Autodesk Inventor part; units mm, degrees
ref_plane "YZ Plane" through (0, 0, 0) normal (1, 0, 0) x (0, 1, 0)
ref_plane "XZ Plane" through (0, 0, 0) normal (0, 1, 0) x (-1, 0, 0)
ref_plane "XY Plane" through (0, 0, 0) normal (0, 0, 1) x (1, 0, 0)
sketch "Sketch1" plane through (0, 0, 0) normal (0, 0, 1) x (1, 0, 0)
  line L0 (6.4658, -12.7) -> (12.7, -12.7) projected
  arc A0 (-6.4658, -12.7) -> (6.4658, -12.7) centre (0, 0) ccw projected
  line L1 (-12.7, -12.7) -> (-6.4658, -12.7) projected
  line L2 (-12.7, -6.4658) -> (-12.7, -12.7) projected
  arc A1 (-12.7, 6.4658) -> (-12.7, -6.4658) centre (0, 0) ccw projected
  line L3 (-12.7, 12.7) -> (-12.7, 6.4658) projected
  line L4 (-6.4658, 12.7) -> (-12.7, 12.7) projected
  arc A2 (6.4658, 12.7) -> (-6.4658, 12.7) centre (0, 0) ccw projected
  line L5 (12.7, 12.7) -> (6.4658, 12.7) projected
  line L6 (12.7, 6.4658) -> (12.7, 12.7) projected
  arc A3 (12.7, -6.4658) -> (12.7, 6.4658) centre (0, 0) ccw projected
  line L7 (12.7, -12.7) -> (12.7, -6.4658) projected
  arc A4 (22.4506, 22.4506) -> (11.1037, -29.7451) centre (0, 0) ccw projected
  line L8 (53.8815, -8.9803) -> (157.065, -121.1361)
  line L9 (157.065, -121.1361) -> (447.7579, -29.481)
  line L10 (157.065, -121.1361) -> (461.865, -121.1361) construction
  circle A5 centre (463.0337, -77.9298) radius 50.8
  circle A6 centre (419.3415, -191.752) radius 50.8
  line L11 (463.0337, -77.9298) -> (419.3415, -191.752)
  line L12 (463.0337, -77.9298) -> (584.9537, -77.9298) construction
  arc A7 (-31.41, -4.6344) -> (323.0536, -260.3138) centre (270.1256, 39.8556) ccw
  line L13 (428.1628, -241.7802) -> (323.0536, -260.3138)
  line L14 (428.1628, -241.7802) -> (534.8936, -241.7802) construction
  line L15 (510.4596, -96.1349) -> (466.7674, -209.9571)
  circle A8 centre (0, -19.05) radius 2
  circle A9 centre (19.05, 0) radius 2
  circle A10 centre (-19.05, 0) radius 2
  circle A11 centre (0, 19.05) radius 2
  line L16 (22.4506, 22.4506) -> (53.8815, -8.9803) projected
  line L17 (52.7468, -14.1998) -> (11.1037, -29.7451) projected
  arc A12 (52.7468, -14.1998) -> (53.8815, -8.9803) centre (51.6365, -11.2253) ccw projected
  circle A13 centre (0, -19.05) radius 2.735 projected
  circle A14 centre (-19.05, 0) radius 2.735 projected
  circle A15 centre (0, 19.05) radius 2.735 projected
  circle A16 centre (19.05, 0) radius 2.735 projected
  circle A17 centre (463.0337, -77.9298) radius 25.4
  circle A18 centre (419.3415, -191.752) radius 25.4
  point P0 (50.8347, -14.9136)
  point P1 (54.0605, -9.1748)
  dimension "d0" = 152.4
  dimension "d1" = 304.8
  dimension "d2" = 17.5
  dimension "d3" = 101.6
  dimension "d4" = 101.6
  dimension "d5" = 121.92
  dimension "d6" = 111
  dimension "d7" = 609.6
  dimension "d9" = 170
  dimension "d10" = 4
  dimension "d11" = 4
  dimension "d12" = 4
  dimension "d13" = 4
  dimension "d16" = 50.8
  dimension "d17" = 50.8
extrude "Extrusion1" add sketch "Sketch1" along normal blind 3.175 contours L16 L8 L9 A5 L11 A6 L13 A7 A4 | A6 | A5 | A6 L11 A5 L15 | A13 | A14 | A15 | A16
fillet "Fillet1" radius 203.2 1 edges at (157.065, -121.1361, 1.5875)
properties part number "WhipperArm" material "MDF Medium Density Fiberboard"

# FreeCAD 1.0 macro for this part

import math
import FreeCAD as App
import Part
import Sketcher
Q = App.Units.Quantity


def edges_at(feature, points):
    """Names of the edges that pass closest to the given points."""
    edges = feature.Shape.Edges
    near = lambda p: min(range(len(edges)), key=lambda i: edges[i].distToShape(Part.Vertex(*p))[0])
    return sorted({f"Edge{near(p) + 1}" for p in points})

doc = App.newDocument("Part")
params = doc.addObject("Spreadsheet::Sheet", "Params")
for row, (alias, value) in enumerate([
    ("sketch1_diameter", "2 in"),
    ("sketch1_radius", "12 in"),
    ("sketch1_radius2", "2 in"),
    ("sketch1_length", "12 in"),
    ("sketch1_length2", "6 in"),
    ("pad1_length", "0.125 in"),
    ("fillet_radius", "8 in"),
], start=1):
    params.set(f"A{row}", alias)
    params.set(f"B{row}", "=" + value)
    params.setAlias(f"B{row}", alias)

body = doc.addObject("PartDesign::Body", "Body")

# Sketch on XY plane
sketch1 = body.newObject("Sketcher::SketchObject", "Sketch")
sketch1.AttachmentSupport = (doc.getObject("XY_Plane"), [""])
sketch1.MapMode = "FlatFace"
sketch1.addGeometry([
    Part.LineSegment(App.Vector(53.9, -9, 0), App.Vector(22.5, 22.5, 0)),  # 0
    Part.ArcOfCircle(Part.Circle(App.Vector(0, 0, 0), App.Vector(0, 0, 1), 31.7), math.radians(45), math.radians(188)),  # 1
    Part.ArcOfCircle(Part.Circle(App.Vector(270.1, 39.9, 0), App.Vector(0, 0, 1), 304.8), math.radians(-172), math.radians(-80)),  # 2
    Part.LineSegment(App.Vector(323.1, -260.3, 0), App.Vector(428.2, -241.8, 0)),  # 3
    Part.ArcOfCircle(Part.Circle(App.Vector(419.3, -191.8, 0), App.Vector(0, 0, 1), 50.8), math.radians(-80), math.radians(-21)),  # 4
    Part.LineSegment(App.Vector(466.8, -210, 0), App.Vector(510.5, -96.1, 0)),  # 5
    Part.ArcOfCircle(Part.Circle(App.Vector(463, -77.9, 0), App.Vector(0, 0, 1), 50.8), math.radians(-21), math.radians(107)),  # 6
    Part.LineSegment(App.Vector(447.8, -29.5, 0), App.Vector(157.1, -121.1, 0)),  # 7
    Part.LineSegment(App.Vector(157.1, -121.1, 0), App.Vector(53.9, -9, 0)),  # 8
    Part.LineSegment(App.Vector(12.7, -12.7, 0), App.Vector(6.5, -12.7, 0)),  # 9
    Part.ArcOfCircle(Part.Circle(App.Vector(0, 0, 0), App.Vector(0, 0, 1), 14.3), math.radians(-117), math.radians(-63)),  # 10
    Part.LineSegment(App.Vector(-6.5, -12.7, 0), App.Vector(-12.7, -12.7, 0)),  # 11
    Part.LineSegment(App.Vector(-12.7, -12.7, 0), App.Vector(-12.7, -6.5, 0)),  # 12
    Part.ArcOfCircle(Part.Circle(App.Vector(0, 0, 0), App.Vector(0, 0, 1), 14.3), math.radians(153), math.radians(207)),  # 13
    Part.LineSegment(App.Vector(-12.7, 6.5, 0), App.Vector(-12.7, 12.7, 0)),  # 14
    Part.LineSegment(App.Vector(-12.7, 12.7, 0), App.Vector(-6.5, 12.7, 0)),  # 15
    Part.ArcOfCircle(Part.Circle(App.Vector(0, 0, 0), App.Vector(0, 0, 1), 14.3), math.radians(63), math.radians(117)),  # 16
    Part.LineSegment(App.Vector(6.5, 12.7, 0), App.Vector(12.7, 12.7, 0)),  # 17
    Part.LineSegment(App.Vector(12.7, 12.7, 0), App.Vector(12.7, 6.5, 0)),  # 18
    Part.ArcOfCircle(Part.Circle(App.Vector(0, 0, 0), App.Vector(0, 0, 1), 14.3), math.radians(-27), math.radians(27)),  # 19
    Part.LineSegment(App.Vector(12.7, -6.5, 0), App.Vector(12.7, -12.7, 0)),  # 20
    Part.Circle(App.Vector(463, -77.9, 0), App.Vector(0, 0, 1), 25.4),  # 21
    Part.Circle(App.Vector(419.3, -191.8, 0), App.Vector(0, 0, 1), 25.4),  # 22
    Part.Circle(App.Vector(0, -19.1, 0), App.Vector(0, 0, 1), 2),  # 23
    Part.Circle(App.Vector(-19.1, 0, 0), App.Vector(0, 0, 1), 2),  # 24
    Part.Circle(App.Vector(19.1, 0, 0), App.Vector(0, 0, 1), 2),  # 25
    Part.Circle(App.Vector(0, 19.1, 0), App.Vector(0, 0, 1), 2),  # 26
], False)
sketch1.addConstraint([
    Sketcher.Constraint("Tangent", 0, 2, 1, 1),
    Sketcher.Constraint("Tangent", 1, 2, 2, 1),
    Sketcher.Constraint("Tangent", 2, 2, 3, 1),
    Sketcher.Constraint("Tangent", 3, 2, 4, 1),
    Sketcher.Constraint("Tangent", 4, 2, 5, 1),
    Sketcher.Constraint("Tangent", 5, 2, 6, 1),
    Sketcher.Constraint("Tangent", 6, 2, 7, 1),
    Sketcher.Constraint("Coincident", 7, 2, 8, 1),
    Sketcher.Constraint("Coincident", 8, 2, 0, 1),
    Sketcher.Constraint("Coincident", 9, 2, 10, 2),
    Sketcher.Constraint("Coincident", 10, 1, 11, 1),
    Sketcher.Constraint("Coincident", 11, 2, 12, 1),
    Sketcher.Constraint("Coincident", 12, 2, 13, 2),
    Sketcher.Constraint("Coincident", 13, 1, 14, 1),
    Sketcher.Constraint("Coincident", 14, 2, 15, 1),
    Sketcher.Constraint("Coincident", 15, 2, 16, 2),
    Sketcher.Constraint("Coincident", 16, 1, 17, 1),
    Sketcher.Constraint("Coincident", 17, 2, 18, 1),
    Sketcher.Constraint("Coincident", 18, 2, 19, 2),
    Sketcher.Constraint("Coincident", 19, 1, 20, 1),
    Sketcher.Constraint("Coincident", 20, 2, 9, 1),
    Sketcher.Constraint("Horizontal", 9),
    Sketcher.Constraint("Horizontal", 11),
    Sketcher.Constraint("Vertical", 12),
    Sketcher.Constraint("Vertical", 14),
    Sketcher.Constraint("Horizontal", 15),
    Sketcher.Constraint("Horizontal", 17),
    Sketcher.Constraint("Vertical", 18),
    Sketcher.Constraint("Vertical", 20),
    Sketcher.Constraint("Coincident", 1, 3, -1, 1),
    Sketcher.Constraint("Coincident", 10, 3, -1, 1),
    Sketcher.Constraint("Coincident", 13, 3, -1, 1),
    Sketcher.Constraint("Coincident", 16, 3, -1, 1),
    Sketcher.Constraint("Coincident", 19, 3, -1, 1),
    Sketcher.Constraint("Coincident", 21, 3, 6, 3),
    Sketcher.Constraint("Coincident", 22, 3, 4, 3),
    Sketcher.Constraint("Equal", 4, 6),
    Sketcher.Constraint("Equal", 10, 13),
    Sketcher.Constraint("Equal", 13, 16),
    Sketcher.Constraint("Equal", 16, 19),
    Sketcher.Constraint("Equal", 21, 22),
    Sketcher.Constraint("Equal", 23, 24),
    Sketcher.Constraint("Equal", 24, 25),
    Sketcher.Constraint("Equal", 25, 26),
    Sketcher.Constraint("Symmetric", 24, 3, 25, 3, -1, 1),
    Sketcher.Constraint("Symmetric", 23, 3, 26, 3, -1, 1),
    Sketcher.Constraint("Symmetric", 11, 2, 17, 2, -1, 1),
    Sketcher.Constraint("Symmetric", 14, 2, 20, 2, -1, 1),
    Sketcher.Constraint("Symmetric", 14, 2, 17, 2, -2),
    Sketcher.Constraint("PointOnObject", 23, 3, -2),
    Sketcher.Constraint("PointOnObject", 24, 3, -1),
    Sketcher.Constraint("Equal", 17, 12),
    Sketcher.Constraint("Diameter", 21, Q("2 in")),
    Sketcher.Constraint("Radius", 2, Q("12 in")),
    Sketcher.Constraint("Radius", 4, Q("2 in")),
    Sketcher.Constraint("Distance", 7, Q("12 in")),
    Sketcher.Constraint("Distance", 8, Q("6 in")),
    Sketcher.Constraint("Distance", 5, Q("4.8 in")),
    Sketcher.Constraint("Diameter", 23, 4.0),
    Sketcher.Constraint("Radius", 1, Q("1.25 in")),
    Sketcher.Constraint("Angle", 0, Q("135 deg")),
    Sketcher.Constraint("Angle", 3, Q("10 deg")),
    Sketcher.Constraint("Angle", 5, Q("69 deg")),
    Sketcher.Constraint("DistanceY", 9, 2, -1, 1, Q("0.5 in")),
    Sketcher.Constraint("Angle", 7, Q("-162.5 deg")),
    Sketcher.Constraint("Distance", 0, Q("1.75 in")),
    Sketcher.Constraint("DistanceY", 23, 3, -1, 1, Q("0.75 in")),
    Sketcher.Constraint("DistanceX", 24, 3, -1, 1, Q("0.75 in")),
    Sketcher.Constraint("Radius", 10, 14.2512),
    Sketcher.Constraint("Distance", 3, Q("4.202 in")),
])
sketch1.setExpression("Constraints[52]", "Params.sketch1_diameter")
sketch1.setExpression("Constraints[53]", "Params.sketch1_radius")
sketch1.setExpression("Constraints[54]", "Params.sketch1_radius2")
sketch1.setExpression("Constraints[55]", "Params.sketch1_length")
sketch1.setExpression("Constraints[56]", "Params.sketch1_length2")
pad1 = body.newObject("PartDesign::Pad", "Pad")
pad1.Profile = sketch1
pad1.setExpression("Length", "Params.pad1_length")
doc.recompute()

fillet = body.newObject("PartDesign::Fillet", "Fillet")
fillet.Base = (pad1, edges_at(pad1, [(157.065, -121.136, 1.587)]))
fillet.setExpression("Radius", "Params.fillet_radius")

doc.recompute()
